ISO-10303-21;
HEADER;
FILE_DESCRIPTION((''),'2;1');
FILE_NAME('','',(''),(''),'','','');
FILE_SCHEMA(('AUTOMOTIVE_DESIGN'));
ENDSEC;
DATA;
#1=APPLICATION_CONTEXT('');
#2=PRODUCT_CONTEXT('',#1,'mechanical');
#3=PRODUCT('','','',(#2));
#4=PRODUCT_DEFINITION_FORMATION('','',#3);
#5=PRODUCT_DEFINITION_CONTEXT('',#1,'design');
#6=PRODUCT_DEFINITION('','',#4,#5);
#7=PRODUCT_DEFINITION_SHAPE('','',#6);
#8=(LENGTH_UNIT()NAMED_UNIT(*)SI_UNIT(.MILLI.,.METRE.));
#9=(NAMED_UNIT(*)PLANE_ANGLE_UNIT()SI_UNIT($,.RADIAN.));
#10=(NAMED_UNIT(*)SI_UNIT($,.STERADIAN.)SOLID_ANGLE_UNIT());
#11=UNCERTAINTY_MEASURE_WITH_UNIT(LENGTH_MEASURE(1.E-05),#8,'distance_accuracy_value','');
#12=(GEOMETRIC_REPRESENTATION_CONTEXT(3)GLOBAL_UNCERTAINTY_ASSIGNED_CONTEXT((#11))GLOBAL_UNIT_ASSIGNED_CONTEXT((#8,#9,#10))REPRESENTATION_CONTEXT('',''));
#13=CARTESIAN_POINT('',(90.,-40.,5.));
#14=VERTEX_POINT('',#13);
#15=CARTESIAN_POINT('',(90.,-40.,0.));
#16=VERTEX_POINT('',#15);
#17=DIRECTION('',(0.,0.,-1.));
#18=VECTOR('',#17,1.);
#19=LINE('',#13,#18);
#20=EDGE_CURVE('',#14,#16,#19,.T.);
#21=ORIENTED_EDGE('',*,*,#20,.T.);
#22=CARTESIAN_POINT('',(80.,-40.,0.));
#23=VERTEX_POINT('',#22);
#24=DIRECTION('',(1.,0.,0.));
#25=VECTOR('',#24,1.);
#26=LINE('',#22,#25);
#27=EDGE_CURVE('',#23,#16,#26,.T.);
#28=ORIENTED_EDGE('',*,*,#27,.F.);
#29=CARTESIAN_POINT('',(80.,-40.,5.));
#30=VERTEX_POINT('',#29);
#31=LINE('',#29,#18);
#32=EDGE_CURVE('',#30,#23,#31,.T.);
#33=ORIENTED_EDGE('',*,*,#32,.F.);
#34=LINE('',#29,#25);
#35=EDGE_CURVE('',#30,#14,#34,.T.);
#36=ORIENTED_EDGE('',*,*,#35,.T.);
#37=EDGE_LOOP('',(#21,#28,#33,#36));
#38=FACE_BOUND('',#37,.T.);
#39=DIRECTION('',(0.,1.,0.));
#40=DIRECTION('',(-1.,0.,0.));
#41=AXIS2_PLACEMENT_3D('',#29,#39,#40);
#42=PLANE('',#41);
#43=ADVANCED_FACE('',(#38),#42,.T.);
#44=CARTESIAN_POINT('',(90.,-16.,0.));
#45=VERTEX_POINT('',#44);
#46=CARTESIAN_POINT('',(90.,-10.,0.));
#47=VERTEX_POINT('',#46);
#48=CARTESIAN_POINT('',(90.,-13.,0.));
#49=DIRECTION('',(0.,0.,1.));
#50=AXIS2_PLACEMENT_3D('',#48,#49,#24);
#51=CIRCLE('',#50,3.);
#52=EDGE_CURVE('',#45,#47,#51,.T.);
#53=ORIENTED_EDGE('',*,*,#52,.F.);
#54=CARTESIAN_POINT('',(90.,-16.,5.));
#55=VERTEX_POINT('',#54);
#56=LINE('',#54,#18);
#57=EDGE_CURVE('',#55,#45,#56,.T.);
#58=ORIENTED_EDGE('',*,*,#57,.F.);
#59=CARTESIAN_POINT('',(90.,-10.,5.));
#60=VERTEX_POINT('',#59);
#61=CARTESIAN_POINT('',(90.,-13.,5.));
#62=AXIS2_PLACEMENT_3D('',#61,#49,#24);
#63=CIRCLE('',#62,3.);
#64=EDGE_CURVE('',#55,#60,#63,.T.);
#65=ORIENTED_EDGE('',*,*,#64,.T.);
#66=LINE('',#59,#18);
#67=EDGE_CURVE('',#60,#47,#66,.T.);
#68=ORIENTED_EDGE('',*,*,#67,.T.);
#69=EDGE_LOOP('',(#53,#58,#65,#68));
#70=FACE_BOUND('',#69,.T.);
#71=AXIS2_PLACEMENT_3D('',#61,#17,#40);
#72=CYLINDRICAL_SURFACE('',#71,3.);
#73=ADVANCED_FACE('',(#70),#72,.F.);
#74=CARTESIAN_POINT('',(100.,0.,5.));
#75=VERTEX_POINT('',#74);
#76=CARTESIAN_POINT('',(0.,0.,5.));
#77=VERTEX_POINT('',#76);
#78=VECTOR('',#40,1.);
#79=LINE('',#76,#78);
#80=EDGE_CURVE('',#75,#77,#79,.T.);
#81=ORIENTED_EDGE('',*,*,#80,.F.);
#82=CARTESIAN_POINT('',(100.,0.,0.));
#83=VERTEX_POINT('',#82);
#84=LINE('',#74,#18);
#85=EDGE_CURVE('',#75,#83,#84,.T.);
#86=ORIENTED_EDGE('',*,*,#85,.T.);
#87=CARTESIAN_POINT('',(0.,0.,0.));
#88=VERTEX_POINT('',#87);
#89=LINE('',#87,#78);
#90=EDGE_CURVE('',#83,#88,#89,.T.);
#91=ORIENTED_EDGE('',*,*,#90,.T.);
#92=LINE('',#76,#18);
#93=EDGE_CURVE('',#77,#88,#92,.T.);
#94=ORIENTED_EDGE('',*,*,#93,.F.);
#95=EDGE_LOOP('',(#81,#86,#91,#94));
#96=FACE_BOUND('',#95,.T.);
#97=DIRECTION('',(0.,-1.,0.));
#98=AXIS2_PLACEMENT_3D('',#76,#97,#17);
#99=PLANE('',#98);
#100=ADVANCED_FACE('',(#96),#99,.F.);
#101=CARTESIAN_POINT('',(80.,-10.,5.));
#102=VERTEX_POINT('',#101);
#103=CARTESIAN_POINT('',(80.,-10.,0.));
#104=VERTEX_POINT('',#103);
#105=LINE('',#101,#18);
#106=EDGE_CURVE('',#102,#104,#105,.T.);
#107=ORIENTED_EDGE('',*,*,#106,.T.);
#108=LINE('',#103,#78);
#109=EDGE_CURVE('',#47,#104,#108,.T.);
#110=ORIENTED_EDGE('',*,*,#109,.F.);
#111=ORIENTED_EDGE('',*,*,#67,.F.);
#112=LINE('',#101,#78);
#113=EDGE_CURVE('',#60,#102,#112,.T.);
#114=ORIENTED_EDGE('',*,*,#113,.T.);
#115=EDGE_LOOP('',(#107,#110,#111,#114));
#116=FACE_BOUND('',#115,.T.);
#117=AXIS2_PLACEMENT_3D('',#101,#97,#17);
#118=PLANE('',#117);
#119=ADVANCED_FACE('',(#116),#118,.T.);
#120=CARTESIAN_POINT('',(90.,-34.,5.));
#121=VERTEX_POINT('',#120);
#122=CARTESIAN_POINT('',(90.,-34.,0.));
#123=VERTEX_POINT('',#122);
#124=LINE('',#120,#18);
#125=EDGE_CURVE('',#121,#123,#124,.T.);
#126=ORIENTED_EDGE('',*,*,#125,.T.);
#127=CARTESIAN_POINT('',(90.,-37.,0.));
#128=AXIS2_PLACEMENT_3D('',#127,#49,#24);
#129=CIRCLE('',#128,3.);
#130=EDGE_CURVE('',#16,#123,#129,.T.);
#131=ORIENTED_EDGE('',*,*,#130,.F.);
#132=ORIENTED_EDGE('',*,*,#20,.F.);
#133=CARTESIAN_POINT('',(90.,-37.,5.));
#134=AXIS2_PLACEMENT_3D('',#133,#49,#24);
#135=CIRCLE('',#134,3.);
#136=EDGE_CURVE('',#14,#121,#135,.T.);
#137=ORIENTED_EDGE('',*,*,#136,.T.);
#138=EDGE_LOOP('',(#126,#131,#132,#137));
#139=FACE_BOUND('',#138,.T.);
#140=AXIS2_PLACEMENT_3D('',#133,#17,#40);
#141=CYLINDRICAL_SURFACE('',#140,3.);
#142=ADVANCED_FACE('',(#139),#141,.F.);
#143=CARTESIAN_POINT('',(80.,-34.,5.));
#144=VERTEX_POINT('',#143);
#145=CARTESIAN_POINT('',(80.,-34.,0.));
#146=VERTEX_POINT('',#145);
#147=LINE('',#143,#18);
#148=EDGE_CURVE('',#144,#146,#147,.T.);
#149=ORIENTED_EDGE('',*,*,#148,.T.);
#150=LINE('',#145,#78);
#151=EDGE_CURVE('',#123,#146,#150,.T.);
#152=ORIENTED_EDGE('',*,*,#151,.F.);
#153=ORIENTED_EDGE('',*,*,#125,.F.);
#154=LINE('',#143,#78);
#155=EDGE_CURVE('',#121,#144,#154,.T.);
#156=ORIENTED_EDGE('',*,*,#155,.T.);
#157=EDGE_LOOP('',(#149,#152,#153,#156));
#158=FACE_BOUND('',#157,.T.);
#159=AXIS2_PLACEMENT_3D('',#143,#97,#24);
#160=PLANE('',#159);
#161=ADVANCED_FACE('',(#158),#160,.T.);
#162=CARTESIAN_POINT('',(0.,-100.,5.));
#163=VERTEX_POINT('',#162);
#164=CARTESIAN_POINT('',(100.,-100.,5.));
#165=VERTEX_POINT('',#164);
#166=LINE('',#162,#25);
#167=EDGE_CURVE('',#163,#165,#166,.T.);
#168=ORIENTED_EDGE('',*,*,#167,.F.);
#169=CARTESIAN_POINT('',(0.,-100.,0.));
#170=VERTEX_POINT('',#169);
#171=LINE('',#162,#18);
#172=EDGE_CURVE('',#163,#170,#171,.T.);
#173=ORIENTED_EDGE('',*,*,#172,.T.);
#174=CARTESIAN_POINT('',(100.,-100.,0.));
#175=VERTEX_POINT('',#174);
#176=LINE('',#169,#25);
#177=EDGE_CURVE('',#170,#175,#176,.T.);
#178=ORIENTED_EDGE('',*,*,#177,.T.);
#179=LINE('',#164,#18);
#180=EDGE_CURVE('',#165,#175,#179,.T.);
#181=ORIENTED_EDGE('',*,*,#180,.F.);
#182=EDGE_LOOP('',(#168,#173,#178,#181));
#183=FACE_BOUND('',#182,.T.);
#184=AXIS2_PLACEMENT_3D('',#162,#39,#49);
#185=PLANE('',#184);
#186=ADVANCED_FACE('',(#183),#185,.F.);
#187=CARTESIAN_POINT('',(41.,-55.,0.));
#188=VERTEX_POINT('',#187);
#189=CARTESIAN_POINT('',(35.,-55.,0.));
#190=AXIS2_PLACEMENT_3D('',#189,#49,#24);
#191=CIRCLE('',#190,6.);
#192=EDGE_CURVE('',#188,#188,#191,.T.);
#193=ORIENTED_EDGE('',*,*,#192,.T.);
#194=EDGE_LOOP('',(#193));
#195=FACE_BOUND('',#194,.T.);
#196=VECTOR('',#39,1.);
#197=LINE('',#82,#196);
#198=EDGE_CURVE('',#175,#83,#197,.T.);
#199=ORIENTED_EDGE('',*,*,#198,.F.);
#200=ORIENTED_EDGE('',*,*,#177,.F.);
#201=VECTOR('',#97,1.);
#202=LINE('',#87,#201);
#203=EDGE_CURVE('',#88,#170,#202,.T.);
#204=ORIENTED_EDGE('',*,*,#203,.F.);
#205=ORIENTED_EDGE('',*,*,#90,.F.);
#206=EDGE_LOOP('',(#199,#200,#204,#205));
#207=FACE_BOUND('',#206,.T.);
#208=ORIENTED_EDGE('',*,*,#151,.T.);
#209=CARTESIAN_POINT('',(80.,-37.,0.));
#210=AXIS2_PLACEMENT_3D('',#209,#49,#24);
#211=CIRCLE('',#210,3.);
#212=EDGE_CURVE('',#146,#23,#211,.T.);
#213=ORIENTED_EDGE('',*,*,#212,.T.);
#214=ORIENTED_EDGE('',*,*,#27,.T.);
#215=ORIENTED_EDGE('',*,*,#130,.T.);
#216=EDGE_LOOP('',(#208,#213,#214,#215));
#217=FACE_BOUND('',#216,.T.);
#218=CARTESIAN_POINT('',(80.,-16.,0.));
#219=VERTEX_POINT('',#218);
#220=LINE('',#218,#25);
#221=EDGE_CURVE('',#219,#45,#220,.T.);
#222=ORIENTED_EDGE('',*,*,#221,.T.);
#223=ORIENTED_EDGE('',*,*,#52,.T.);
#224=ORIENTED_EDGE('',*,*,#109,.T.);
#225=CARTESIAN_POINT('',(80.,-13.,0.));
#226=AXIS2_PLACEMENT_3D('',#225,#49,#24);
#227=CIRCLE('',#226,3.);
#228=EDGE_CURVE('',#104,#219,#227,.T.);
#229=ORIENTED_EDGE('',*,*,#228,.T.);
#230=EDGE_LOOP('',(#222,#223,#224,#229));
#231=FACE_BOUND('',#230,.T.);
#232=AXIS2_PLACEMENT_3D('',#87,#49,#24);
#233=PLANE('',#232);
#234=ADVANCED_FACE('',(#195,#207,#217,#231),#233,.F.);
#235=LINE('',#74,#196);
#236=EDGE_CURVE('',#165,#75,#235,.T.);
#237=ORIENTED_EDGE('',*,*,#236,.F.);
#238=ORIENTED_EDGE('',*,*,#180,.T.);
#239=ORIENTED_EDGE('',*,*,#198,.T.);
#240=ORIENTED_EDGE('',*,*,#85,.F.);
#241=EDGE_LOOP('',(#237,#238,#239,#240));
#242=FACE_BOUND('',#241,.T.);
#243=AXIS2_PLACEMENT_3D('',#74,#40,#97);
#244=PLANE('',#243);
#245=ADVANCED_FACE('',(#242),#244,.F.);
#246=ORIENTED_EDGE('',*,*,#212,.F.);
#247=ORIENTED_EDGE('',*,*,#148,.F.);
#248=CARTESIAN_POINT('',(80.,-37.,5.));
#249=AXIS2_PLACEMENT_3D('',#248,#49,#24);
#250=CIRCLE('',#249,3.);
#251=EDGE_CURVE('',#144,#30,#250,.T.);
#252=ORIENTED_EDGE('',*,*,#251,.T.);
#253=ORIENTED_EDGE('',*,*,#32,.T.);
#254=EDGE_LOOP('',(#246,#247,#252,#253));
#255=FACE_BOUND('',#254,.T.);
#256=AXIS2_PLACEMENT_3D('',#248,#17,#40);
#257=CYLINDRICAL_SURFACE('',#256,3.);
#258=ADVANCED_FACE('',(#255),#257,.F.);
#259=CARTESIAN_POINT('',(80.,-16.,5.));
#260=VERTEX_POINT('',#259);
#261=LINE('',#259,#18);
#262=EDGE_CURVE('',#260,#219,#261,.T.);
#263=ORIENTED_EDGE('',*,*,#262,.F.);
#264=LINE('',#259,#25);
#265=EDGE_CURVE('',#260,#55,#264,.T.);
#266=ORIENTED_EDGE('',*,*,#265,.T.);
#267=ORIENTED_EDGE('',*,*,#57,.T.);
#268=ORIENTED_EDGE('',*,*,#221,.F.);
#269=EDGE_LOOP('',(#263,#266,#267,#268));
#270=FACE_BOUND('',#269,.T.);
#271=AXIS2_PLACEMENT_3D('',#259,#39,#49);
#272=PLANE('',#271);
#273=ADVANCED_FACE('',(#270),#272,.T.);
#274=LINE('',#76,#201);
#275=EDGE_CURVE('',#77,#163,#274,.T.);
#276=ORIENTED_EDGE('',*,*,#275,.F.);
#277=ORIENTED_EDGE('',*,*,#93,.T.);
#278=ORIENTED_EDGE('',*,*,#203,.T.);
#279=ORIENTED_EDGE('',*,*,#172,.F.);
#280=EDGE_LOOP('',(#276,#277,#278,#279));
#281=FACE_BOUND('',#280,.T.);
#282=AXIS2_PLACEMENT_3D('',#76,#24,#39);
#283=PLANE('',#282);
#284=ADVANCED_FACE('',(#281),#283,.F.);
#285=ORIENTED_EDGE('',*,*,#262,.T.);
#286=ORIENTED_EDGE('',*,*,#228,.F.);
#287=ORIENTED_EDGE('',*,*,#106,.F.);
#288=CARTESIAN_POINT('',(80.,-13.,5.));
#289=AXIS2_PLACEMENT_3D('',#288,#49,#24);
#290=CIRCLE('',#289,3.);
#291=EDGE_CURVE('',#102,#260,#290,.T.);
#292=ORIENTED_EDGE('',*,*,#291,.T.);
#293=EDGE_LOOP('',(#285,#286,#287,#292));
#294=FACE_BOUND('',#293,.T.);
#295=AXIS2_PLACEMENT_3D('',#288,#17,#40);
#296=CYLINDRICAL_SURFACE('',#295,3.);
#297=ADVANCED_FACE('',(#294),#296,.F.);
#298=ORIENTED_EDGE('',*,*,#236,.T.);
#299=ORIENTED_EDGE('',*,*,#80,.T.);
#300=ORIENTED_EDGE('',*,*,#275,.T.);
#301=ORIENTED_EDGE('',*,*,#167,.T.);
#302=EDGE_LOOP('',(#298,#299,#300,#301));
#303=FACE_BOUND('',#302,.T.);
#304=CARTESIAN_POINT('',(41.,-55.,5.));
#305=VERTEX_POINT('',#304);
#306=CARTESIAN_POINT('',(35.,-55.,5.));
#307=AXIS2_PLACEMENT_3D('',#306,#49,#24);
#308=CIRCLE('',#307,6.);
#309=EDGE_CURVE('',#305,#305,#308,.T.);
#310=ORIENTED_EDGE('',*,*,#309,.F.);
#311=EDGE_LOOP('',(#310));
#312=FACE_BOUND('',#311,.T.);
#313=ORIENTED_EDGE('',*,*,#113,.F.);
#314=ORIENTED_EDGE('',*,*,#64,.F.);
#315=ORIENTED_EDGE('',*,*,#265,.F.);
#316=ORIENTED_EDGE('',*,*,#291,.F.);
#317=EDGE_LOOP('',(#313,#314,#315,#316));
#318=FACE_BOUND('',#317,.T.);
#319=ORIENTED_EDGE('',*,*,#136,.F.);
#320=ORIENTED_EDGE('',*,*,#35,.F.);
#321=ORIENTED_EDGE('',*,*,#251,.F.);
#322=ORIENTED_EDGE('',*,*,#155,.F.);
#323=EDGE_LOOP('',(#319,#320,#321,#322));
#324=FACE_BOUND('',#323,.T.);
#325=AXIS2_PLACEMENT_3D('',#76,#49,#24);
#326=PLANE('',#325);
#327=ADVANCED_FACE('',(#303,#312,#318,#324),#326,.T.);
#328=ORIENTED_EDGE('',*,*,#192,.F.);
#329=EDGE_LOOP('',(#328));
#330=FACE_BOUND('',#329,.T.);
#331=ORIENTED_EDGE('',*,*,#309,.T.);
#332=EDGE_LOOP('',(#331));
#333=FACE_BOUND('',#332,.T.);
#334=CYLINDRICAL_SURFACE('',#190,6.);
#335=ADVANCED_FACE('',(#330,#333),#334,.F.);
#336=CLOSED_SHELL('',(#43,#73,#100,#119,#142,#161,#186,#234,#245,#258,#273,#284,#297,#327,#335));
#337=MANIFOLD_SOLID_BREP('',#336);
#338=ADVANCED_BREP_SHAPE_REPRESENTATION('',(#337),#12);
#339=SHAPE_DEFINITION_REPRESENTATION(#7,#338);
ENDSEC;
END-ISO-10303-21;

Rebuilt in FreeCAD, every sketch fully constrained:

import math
import FreeCAD as App
import Part
import Sketcher
from FreeCAD import Vector


def add_polygon(sketch, points):
    """Adds a closed chain of lines whose ends are joined by coincident constraints."""
    first, n = sketch.GeometryCount, len(points)
    for a, b in zip(points, points[1:] + points[:1]):
        sketch.addGeometry(Part.LineSegment(App.Vector(*a, 0), App.Vector(*b, 0)), False)
    for i in range(n):
        sketch.addConstraint(Sketcher.Constraint("Coincident", first + i, 2, first + (i + 1) % n, 1))

doc = App.newDocument("Part")
body = doc.addObject("PartDesign::Body", "Body")

# Sketch on XY plane
sketch1 = body.newObject("Sketcher::SketchObject", "Sketch")
sketch1.AttachmentSupport = (doc.getObject("XY_Plane"), [""])
sketch1.MapMode = "FlatFace"
add_polygon(sketch1, [(0, 0), (0, -100), (100, -100), (100, 0)])  # lines 0-3
sketch1.addGeometry(Part.ArcOfCircle(Part.Circle(Vector(80, -37, 0), Vector(0, 0, 1), 3), math.radians(90), math.radians(270)), False)  # 4
sketch1.addGeometry(Part.LineSegment(Vector(80, -34, 0), Vector(90, -34, 0)), False)  # 5
sketch1.addGeometry(Part.ArcOfCircle(Part.Circle(Vector(90, -37, 0), Vector(0, 0, 1), 3), math.radians(-90), math.radians(90)), False)  # 6
sketch1.addGeometry(Part.LineSegment(Vector(90, -40, 0), Vector(80, -40, 0)), False)  # 7
sketch1.addGeometry(Part.ArcOfCircle(Part.Circle(Vector(80, -13, 0), Vector(0, 0, 1), 3), math.radians(90), math.radians(270)), False)  # 8
sketch1.addGeometry(Part.LineSegment(Vector(80, -10, 0), Vector(90, -10, 0)), False)  # 9
sketch1.addGeometry(Part.ArcOfCircle(Part.Circle(Vector(90, -13, 0), Vector(0, 0, 1), 3), math.radians(-90), math.radians(90)), False)  # 10
sketch1.addGeometry(Part.LineSegment(Vector(90, -16, 0), Vector(80, -16, 0)), False)  # 11
sketch1.addConstraint([
    Sketcher.Constraint("Tangent", 4, 1, 5, 1),
    Sketcher.Constraint("Tangent", 5, 2, 6, 2),
    Sketcher.Constraint("Tangent", 6, 1, 7, 1),
    Sketcher.Constraint("Tangent", 7, 2, 4, 2),
    Sketcher.Constraint("Tangent", 8, 1, 9, 1),
    Sketcher.Constraint("Tangent", 9, 2, 10, 2),
    Sketcher.Constraint("Tangent", 10, 1, 11, 1),
    Sketcher.Constraint("Tangent", 11, 2, 8, 2),
    Sketcher.Constraint("Vertical", 0),
    Sketcher.Constraint("Horizontal", 1),
    Sketcher.Constraint("Vertical", 2),
    Sketcher.Constraint("Horizontal", 3),
    Sketcher.Constraint("Horizontal", 5),
    Sketcher.Constraint("Horizontal", 7),
    Sketcher.Constraint("Horizontal", 9),
    Sketcher.Constraint("Horizontal", 11),
    Sketcher.Constraint("Coincident", 3, 2, -1, 1),
    Sketcher.Constraint("Equal", 6, 8),
    Sketcher.Constraint("Vertical", 4, 3, 8, 3),
    Sketcher.Constraint("Vertical", 6, 3, 10, 3),
    Sketcher.Constraint("Equal", 3, 0),
    Sketcher.Constraint("Radius", 4, 3.0),
    Sketcher.Constraint("DistanceX", 1, 1, 1, 2, 100.0),
    Sketcher.Constraint("DistanceX", 5, 1, 5, 2, 10.0),
    Sketcher.Constraint("DistanceX", -1, 1, 4, 3, 80.0),
    Sketcher.Constraint("DistanceY", 4, 3, -1, 1, 37.0),
    Sketcher.Constraint("DistanceY", 8, 3, -1, 1, 13.0),
])
pad1 = body.newObject("PartDesign::Pad", "Pad")
pad1.Profile = sketch1
pad1.Length = 5

# Sketch on XY plane
sketch2 = body.newObject("Sketcher::SketchObject", "Sketch001")
sketch2.AttachmentSupport = (doc.getObject("XY_Plane"), [""])
sketch2.MapMode = "FlatFace"
sketch2.AttachmentOffset = App.Placement(Vector(0, 0, 5), App.Rotation())
sketch2.addGeometry(Part.Circle(Vector(35, -55, 0), Vector(0, 0, 1), 6), False)
sketch2.addConstraint([
    Sketcher.Constraint("Diameter", 0, 12.0),
    Sketcher.Constraint("DistanceX", -1, 1, 0, 3, 35.0),
    Sketcher.Constraint("DistanceY", 0, 3, -1, 1, 55.0),
])
pocket1 = body.newObject("PartDesign::Pocket", "Pocket")
pocket1.Profile = sketch2
pocket1.Length = 5

doc.recompute()
